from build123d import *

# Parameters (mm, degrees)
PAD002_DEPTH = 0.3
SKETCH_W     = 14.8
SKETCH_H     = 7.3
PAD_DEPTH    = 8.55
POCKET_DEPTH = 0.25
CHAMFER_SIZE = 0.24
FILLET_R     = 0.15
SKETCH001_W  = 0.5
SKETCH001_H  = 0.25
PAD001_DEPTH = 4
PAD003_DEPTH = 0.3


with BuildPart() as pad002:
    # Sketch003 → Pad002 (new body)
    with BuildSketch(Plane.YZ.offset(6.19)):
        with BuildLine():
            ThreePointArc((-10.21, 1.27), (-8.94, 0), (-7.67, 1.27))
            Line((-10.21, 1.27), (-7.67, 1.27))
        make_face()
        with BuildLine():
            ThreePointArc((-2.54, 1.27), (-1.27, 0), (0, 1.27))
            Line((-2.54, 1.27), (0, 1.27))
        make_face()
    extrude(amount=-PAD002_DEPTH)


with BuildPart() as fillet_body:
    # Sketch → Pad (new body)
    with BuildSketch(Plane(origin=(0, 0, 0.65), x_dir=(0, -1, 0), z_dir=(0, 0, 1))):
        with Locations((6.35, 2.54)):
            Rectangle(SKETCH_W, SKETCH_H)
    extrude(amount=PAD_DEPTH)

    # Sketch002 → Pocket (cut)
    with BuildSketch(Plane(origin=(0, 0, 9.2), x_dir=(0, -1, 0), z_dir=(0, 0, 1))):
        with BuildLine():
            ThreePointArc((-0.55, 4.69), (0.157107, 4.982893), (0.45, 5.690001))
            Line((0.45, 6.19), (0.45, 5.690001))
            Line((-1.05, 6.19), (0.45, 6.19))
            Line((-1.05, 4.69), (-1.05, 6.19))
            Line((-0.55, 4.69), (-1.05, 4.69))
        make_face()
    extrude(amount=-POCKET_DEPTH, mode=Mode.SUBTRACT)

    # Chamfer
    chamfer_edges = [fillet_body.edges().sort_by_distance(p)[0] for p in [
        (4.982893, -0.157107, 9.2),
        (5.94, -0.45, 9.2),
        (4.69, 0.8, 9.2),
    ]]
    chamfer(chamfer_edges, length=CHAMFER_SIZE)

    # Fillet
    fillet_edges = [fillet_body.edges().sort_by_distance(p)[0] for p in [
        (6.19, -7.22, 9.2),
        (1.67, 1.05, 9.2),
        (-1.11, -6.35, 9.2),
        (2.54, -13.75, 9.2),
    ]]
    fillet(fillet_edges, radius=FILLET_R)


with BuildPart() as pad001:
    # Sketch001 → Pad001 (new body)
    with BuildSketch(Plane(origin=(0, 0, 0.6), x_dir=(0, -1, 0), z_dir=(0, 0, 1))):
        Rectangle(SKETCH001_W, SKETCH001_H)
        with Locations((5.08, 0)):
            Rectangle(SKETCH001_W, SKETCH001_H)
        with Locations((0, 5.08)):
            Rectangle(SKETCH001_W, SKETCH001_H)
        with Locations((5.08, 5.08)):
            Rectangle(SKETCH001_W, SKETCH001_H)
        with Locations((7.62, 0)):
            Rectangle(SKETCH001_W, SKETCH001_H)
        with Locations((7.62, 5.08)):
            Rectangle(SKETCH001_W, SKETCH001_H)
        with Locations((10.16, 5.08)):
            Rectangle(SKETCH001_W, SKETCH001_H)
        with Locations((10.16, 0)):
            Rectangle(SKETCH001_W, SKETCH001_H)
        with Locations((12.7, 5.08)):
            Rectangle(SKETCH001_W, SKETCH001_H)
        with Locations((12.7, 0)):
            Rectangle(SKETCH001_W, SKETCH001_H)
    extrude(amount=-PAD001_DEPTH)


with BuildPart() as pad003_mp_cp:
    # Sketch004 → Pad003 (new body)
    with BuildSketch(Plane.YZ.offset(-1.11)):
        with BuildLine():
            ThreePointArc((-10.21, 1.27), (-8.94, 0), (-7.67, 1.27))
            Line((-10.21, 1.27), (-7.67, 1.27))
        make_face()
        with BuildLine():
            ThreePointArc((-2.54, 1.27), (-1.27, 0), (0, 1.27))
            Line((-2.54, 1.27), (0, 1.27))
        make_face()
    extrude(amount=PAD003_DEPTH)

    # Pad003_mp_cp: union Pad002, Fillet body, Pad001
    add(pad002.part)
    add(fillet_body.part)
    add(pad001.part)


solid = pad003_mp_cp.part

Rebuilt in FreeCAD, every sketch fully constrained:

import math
import FreeCAD as App
import Part
import Sketcher
Q = App.Units.Quantity


def edges_at(feature, points):
    """Names of the edges that pass closest to the given points."""
    edges = feature.Shape.Edges
    near = lambda p: min(range(len(edges)), key=lambda i: edges[i].distToShape(Part.Vertex(*p))[0])
    return sorted({f"Edge{near(p) + 1}" for p in points})


def add_polygon(sketch, points):
    """Adds a closed chain of lines whose ends are joined by coincident constraints."""
    first, n = sketch.GeometryCount, len(points)
    for a, b in zip(points, points[1:] + points[:1]):
        sketch.addGeometry(Part.LineSegment(App.Vector(*a, 0), App.Vector(*b, 0)), False)
    for i in range(n):
        sketch.addConstraint(Sketcher.Constraint("Coincident", first + i, 2, first + (i + 1) % n, 1))

doc = App.newDocument("Part")
body = doc.addObject("PartDesign::Body", "Body")
body.AllowCompound = True

# Sketch on YZ plane
sketch1 = body.newObject("Sketcher::SketchObject", "Sketch")
sketch1.AttachmentSupport = (doc.getObject("YZ_Plane"), [""])
sketch1.MapMode = "FlatFace"
sketch1.AttachmentOffset = App.Placement(App.Vector(0, 0, 6.19), App.Rotation())
sketch1.addGeometry(Part.ArcOfCircle(Part.Circle(App.Vector(-8.9, 1.3, 0), App.Vector(0, 0, 1), 1.3), math.radians(180), math.radians(360)), False)
sketch1.addGeometry(Part.LineSegment(App.Vector(-7.7, 1.3, 0), App.Vector(-10.2, 1.3, 0)), False)
sketch1.addGeometry(Part.ArcOfCircle(Part.Circle(App.Vector(-1.3, 1.3, 0), App.Vector(0, 0, 1), 1.3), math.radians(180), math.radians(360)), False)
sketch1.addGeometry(Part.LineSegment(App.Vector(0, 1.3, 0), App.Vector(-2.5, 1.3, 0)), False)
sketch1.addConstraint(Sketcher.Constraint("Coincident", 0, 1, 1, 2))
sketch1.addConstraint(Sketcher.Constraint("Coincident", 1, 1, 0, 2))
sketch1.addConstraint(Sketcher.Constraint("Coincident", 2, 1, 3, 2))
sketch1.addConstraint(Sketcher.Constraint("Coincident", 3, 1, 2, 2))
sketch1.addConstraint(Sketcher.Constraint("Horizontal", 1))
sketch1.addConstraint(Sketcher.Constraint("Horizontal", 3))
sketch1.addConstraint(Sketcher.Constraint("Equal", 0, 2))
sketch1.addConstraint(Sketcher.Constraint("PointOnObject", 3, 1, -2))
sketch1.addConstraint(Sketcher.Constraint("Horizontal", 0, 3, 2, 3))
sketch1.addConstraint(Sketcher.Constraint("Horizontal", 2, 3, 0, 1))
sketch1.addConstraint(Sketcher.Constraint("Horizontal", 1, 1, 2, 1))
sketch1.addConstraint(Sketcher.Constraint("Radius", 0, Q("1.27 mm")))
sketch1.addConstraint(Sketcher.Constraint("DistanceX", 1, 1, 2, 3, Q("6.4 mm")))
sketch1.addConstraint(Sketcher.Constraint("DistanceY", -1, 1, 0, 3, Q("1.27 mm")))
pad1 = body.newObject("PartDesign::Pad", "Pad")
pad1.Profile = sketch1
pad1.Length = 0.3
pad1.Reversed = True
body2 = doc.addObject("PartDesign::Body", "Body001")

# Sketch on XY plane
sketch2 = body2.newObject("Sketcher::SketchObject", "Sketch001")
sketch2.AttachmentSupport = (doc.getObject("XY_Plane001"), [""])
sketch2.MapMode = "FlatFace"
sketch2.AttachmentOffset = App.Placement(App.Vector(0, 0, 0.65), App.Rotation())
add_polygon(sketch2, [(6, 1), (-1, 1), (-1, -14), (6, -14)])  # lines 0-3
sketch2.addConstraint(Sketcher.Constraint("Horizontal", 0))
sketch2.addConstraint(Sketcher.Constraint("Vertical", 1))
sketch2.addConstraint(Sketcher.Constraint("Horizontal", 2))
sketch2.addConstraint(Sketcher.Constraint("Vertical", 3))
sketch2.addConstraint(Sketcher.Constraint("DistanceX", 0, 2, 0, 1, Q("7.3 mm")))
sketch2.addConstraint(Sketcher.Constraint("DistanceY", 1, 2, 1, 1, Q("14.8 mm")))
sketch2.addConstraint(Sketcher.Constraint("DistanceX", 0, 2, -1, 1, Q("1.11 mm")))
sketch2.addConstraint(Sketcher.Constraint("DistanceY", -1, 1, 0, 2, Q("1.05 mm")))
pad2 = body2.newObject("PartDesign::Pad", "Pad001")
pad2.Profile = sketch2
pad2.Length = 8.55

# Sketch on XY plane
sketch3 = body2.newObject("Sketcher::SketchObject", "Sketch002")
sketch3.AttachmentSupport = (doc.getObject("XY_Plane001"), [""])
sketch3.MapMode = "FlatFace"
sketch3.AttachmentOffset = App.Placement(App.Vector(0, 0, 9.2), App.Rotation())
sketch3.addGeometry(Part.ArcOfCircle(Part.Circle(App.Vector(5.69, 0.55, 0), App.Vector(0, 0, 1), 1), math.radians(180), math.radians(270)), False)
sketch3.addGeometry(Part.LineSegment(App.Vector(5.69, -0.45, 0), App.Vector(6.19, -0.45, 0)), False)
sketch3.addGeometry(Part.LineSegment(App.Vector(6.19, -0.45, 0), App.Vector(6.19, 1.05, 0)), False)
sketch3.addGeometry(Part.LineSegment(App.Vector(6.19, 1.05, 0), App.Vector(4.69, 1.05, 0)), False)
sketch3.addGeometry(Part.LineSegment(App.Vector(4.69, 1.05, 0), App.Vector(4.69, 0.55, 0)), False)
sketch3.addConstraint(Sketcher.Constraint("Tangent", 0, 2, 1, 1))
sketch3.addConstraint(Sketcher.Constraint("Coincident", 1, 2, 2, 1))
sketch3.addConstraint(Sketcher.Constraint("Coincident", 2, 2, 3, 1))
sketch3.addConstraint(Sketcher.Constraint("Coincident", 3, 2, 4, 1))
sketch3.addConstraint(Sketcher.Constraint("Tangent", 4, 2, 0, 1))
sketch3.addConstraint(Sketcher.Constraint("Horizontal", 1))
sketch3.addConstraint(Sketcher.Constraint("Vertical", 2))
sketch3.addConstraint(Sketcher.Constraint("Horizontal", 3))
sketch3.addConstraint(Sketcher.Constraint("Vertical", 4))
sketch3.addConstraint(Sketcher.Constraint("Equal", 3, 2))
sketch3.addConstraint(Sketcher.Constraint("Radius", 0, Q("0.999999 mm")))
sketch3.addConstraint(Sketcher.Constraint("DistanceX", 1, 1, 1, 2, Q("0.499999 mm")))
sketch3.addConstraint(Sketcher.Constraint("DistanceX", -1, 1, 0, 3, Q("5.689999 mm")))
sketch3.addConstraint(Sketcher.Constraint("DistanceY", -1, 1, 0, 3, Q("0.549999 mm")))
pocket1 = body2.newObject("PartDesign::Pocket", "Pocket")
pocket1.Profile = sketch3
pocket1.Length = 0.25
doc.recompute()

chamfer = body2.newObject("PartDesign::Chamfer", "Chamfer")
chamfer.Base = (pocket1, edges_at(pocket1, [(4.983, -0.157, 9.2), (5.94, -0.45, 9.2), (4.69, 0.8, 9.2)]))
chamfer.Size = 0.24
doc.recompute()

fillet = body2.newObject("PartDesign::Fillet", "Fillet")
fillet.Base = (chamfer, edges_at(chamfer, [
    (6.19, -7.22, 9.2),
    (1.67, 1.05, 9.2),
    (-1.11, -6.35, 9.2),
    (2.54, -13.75, 9.2),
]))
fillet.Radius = 0.15
body3 = doc.addObject("PartDesign::Body", "Body002")
body3.AllowCompound = True

# Sketch on XY plane
sketch4 = body3.newObject("Sketcher::SketchObject", "Sketch003")
sketch4.AttachmentSupport = (doc.getObject("XY_Plane002"), [""])
sketch4.MapMode = "FlatFace"
sketch4.AttachmentOffset = App.Placement(App.Vector(0, 0, 0.6), App.Rotation())
add_polygon(sketch4, [(0.12, 0.25), (-0.12, 0.25), (-0.12, -0.25), (0.12, -0.25)])  # lines 0-3
add_polygon(sketch4, [(0.12, -4.83), (-0.12, -4.83), (-0.12, -5.33), (0.12, -5.33)])  # lines 4-7
add_polygon(sketch4, [(5.21, 0.25), (4.96, 0.25), (4.96, -0.25), (5.21, -0.25)])  # lines 8-11
add_polygon(sketch4, [(5.21, -4.83), (4.96, -4.83), (4.96, -5.33), (5.21, -5.33)])  # lines 12-15
add_polygon(sketch4, [(0.12, -7.37), (-0.12, -7.37), (-0.12, -7.87), (0.12, -7.87)])  # lines 16-19
add_polygon(sketch4, [(5.21, -7.37), (4.96, -7.37), (4.96, -7.87), (5.21, -7.87)])  # lines 20-23
add_polygon(sketch4, [(5.21, -9.91), (4.96, -9.91), (4.96, -10.41), (5.21, -10.41)])  # lines 24-27
add_polygon(sketch4, [(0.12, -9.91), (-0.12, -9.91), (-0.12, -10.41), (0.12, -10.41)])  # lines 28-31
add_polygon(sketch4, [(5.21, -12.45), (4.96, -12.45), (4.96, -12.95), (5.21, -12.95)])  # lines 32-35
add_polygon(sketch4, [(0.12, -12.45), (-0.12, -12.45), (-0.12, -12.95), (0.12, -12.95)])  # lines 36-39
sketch4.addConstraint(Sketcher.Constraint("Horizontal", 0))
sketch4.addConstraint(Sketcher.Constraint("Vertical", 1))
sketch4.addConstraint(Sketcher.Constraint("Horizontal", 2))
sketch4.addConstraint(Sketcher.Constraint("Vertical", 3))
sketch4.addConstraint(Sketcher.Constraint("Horizontal", 4))
sketch4.addConstraint(Sketcher.Constraint("Vertical", 5))
sketch4.addConstraint(Sketcher.Constraint("Horizontal", 6))
sketch4.addConstraint(Sketcher.Constraint("Vertical", 7))
sketch4.addConstraint(Sketcher.Constraint("Horizontal", 8))
sketch4.addConstraint(Sketcher.Constraint("Vertical", 9))
sketch4.addConstraint(Sketcher.Constraint("Horizontal", 10))
sketch4.addConstraint(Sketcher.Constraint("Vertical", 11))
sketch4.addConstraint(Sketcher.Constraint("Horizontal", 12))
sketch4.addConstraint(Sketcher.Constraint("Vertical", 13))
sketch4.addConstraint(Sketcher.Constraint("Horizontal", 14))
sketch4.addConstraint(Sketcher.Constraint("Vertical", 15))
sketch4.addConstraint(Sketcher.Constraint("Horizontal", 16))
sketch4.addConstraint(Sketcher.Constraint("Vertical", 17))
sketch4.addConstraint(Sketcher.Constraint("Horizontal", 18))
sketch4.addConstraint(Sketcher.Constraint("Vertical", 19))
sketch4.addConstraint(Sketcher.Constraint("Horizontal", 20))
sketch4.addConstraint(Sketcher.Constraint("Vertical", 21))
sketch4.addConstraint(Sketcher.Constraint("Horizontal", 22))
sketch4.addConstraint(Sketcher.Constraint("Vertical", 23))
sketch4.addConstraint(Sketcher.Constraint("Horizontal", 24))
sketch4.addConstraint(Sketcher.Constraint("Vertical", 25))
sketch4.addConstraint(Sketcher.Constraint("Horizontal", 26))
sketch4.addConstraint(Sketcher.Constraint("Vertical", 27))
sketch4.addConstraint(Sketcher.Constraint("Horizontal", 28))
sketch4.addConstraint(Sketcher.Constraint("Vertical", 29))
sketch4.addConstraint(Sketcher.Constraint("Horizontal", 30))
sketch4.addConstraint(Sketcher.Constraint("Vertical", 31))
sketch4.addConstraint(Sketcher.Constraint("Horizontal", 32))
sketch4.addConstraint(Sketcher.Constraint("Vertical", 33))
sketch4.addConstraint(Sketcher.Constraint("Horizontal", 34))
sketch4.addConstraint(Sketcher.Constraint("Vertical", 35))
sketch4.addConstraint(Sketcher.Constraint("Horizontal", 36))
sketch4.addConstraint(Sketcher.Constraint("Vertical", 37))
sketch4.addConstraint(Sketcher.Constraint("Horizontal", 38))
sketch4.addConstraint(Sketcher.Constraint("Vertical", 39))
sketch4.addConstraint(Sketcher.Constraint("Symmetric", 0, 2, 2, 2, -1, 1))
sketch4.addConstraint(Sketcher.Constraint("Horizontal", 3, 2, 8, 2))
sketch4.addConstraint(Sketcher.Constraint("Horizontal", 2, 2, 9, 2))
sketch4.addConstraint(Sketcher.Constraint("Horizontal", 7, 2, 12, 2))
sketch4.addConstraint(Sketcher.Constraint("Horizontal", 6, 2, 13, 2))
sketch4.addConstraint(Sketcher.Constraint("Horizontal", 19, 2, 20, 2))
sketch4.addConstraint(Sketcher.Constraint("Horizontal", 18, 2, 21, 2))
sketch4.addConstraint(Sketcher.Constraint("Horizontal", 27, 2, 28, 2))
sketch4.addConstraint(Sketcher.Constraint("Horizontal", 26, 2, 29, 2))
sketch4.addConstraint(Sketcher.Constraint("Horizontal", 35, 2, 36, 2))
sketch4.addConstraint(Sketcher.Constraint("Horizontal", 34, 2, 37, 2))
sketch4.addConstraint(Sketcher.Constraint("Vertical", 1, 2, 4, 2))
sketch4.addConstraint(Sketcher.Constraint("Vertical", 3, 2, 6, 2))
sketch4.addConstraint(Sketcher.Constraint("Vertical", 9, 2, 12, 2))
sketch4.addConstraint(Sketcher.Constraint("Vertical", 11, 2, 14, 2))
sketch4.addConstraint(Sketcher.Constraint("Vertical", 5, 2, 16, 2))
sketch4.addConstraint(Sketcher.Constraint("Vertical", 7, 2, 18, 2))
sketch4.addConstraint(Sketcher.Constraint("Vertical", 13, 2, 20, 2))
sketch4.addConstraint(Sketcher.Constraint("Vertical", 15, 2, 22, 2))
sketch4.addConstraint(Sketcher.Constraint("Vertical", 21, 2, 24, 2))
sketch4.addConstraint(Sketcher.Constraint("Vertical", 23, 2, 26, 2))
sketch4.addConstraint(Sketcher.Constraint("Vertical", 17, 2, 28, 2))
sketch4.addConstraint(Sketcher.Constraint("Vertical", 19, 2, 30, 2))
sketch4.addConstraint(Sketcher.Constraint("Vertical", 25, 2, 32, 2))
sketch4.addConstraint(Sketcher.Constraint("Vertical", 27, 2, 34, 2))
sketch4.addConstraint(Sketcher.Constraint("Vertical", 29, 2, 36, 2))
sketch4.addConstraint(Sketcher.Constraint("Vertical", 31, 2, 38, 2))
sketch4.addConstraint(Sketcher.Constraint("Equal", 6, 8))
sketch4.addConstraint(Sketcher.Constraint("Equal", 3, 5))
sketch4.addConstraint(Sketcher.Constraint("Equal", 15, 17))
sketch4.addConstraint(Sketcher.Constraint("Equal", 23, 25))
sketch4.addConstraint(Sketcher.Constraint("Equal", 31, 33))
sketch4.addConstraint(Sketcher.Constraint("DistanceY", 1, 2, 1, 1, Q("0.5 mm")))
sketch4.addConstraint(Sketcher.Constraint("DistanceX", 0, 2, 0, 1, Q("0.25 mm")))
sketch4.addConstraint(Sketcher.Constraint("DistanceY", 4, 2, -1, 1, Q("4.83 mm")))
sketch4.addConstraint(Sketcher.Constraint("DistanceY", 16, 2, -1, 1, Q("7.37 mm")))
sketch4.addConstraint(Sketcher.Constraint("DistanceY", 24, 2, -1, 1, Q("9.91 mm")))
sketch4.addConstraint(Sketcher.Constraint("DistanceY", 32, 2, -1, 1, Q("12.45 mm")))
sketch4.addConstraint(Sketcher.Constraint("DistanceX", 3, 2, 8, 2, Q("4.83 mm")))
pad3 = body3.newObject("PartDesign::Pad", "Pad002")
pad3.Profile = sketch4
pad3.Length = 4
pad3.Reversed = True
body4 = doc.addObject("PartDesign::Body", "Body003")
body4.AllowCompound = True

# Sketch on YZ plane
sketch5 = body4.newObject("Sketcher::SketchObject", "Sketch004")
sketch5.AttachmentSupport = (doc.getObject("YZ_Plane003"), [""])
sketch5.MapMode = "FlatFace"
sketch5.AttachmentOffset = App.Placement(App.Vector(0, 0, -1.11), App.Rotation())
sketch5.addGeometry(Part.ArcOfCircle(Part.Circle(App.Vector(-8.9, 1.3, 0), App.Vector(0, 0, 1), 1.3), math.radians(180), math.radians(360)), False)
sketch5.addGeometry(Part.LineSegment(App.Vector(-7.7, 1.3, 0), App.Vector(-10.2, 1.3, 0)), False)
sketch5.addGeometry(Part.ArcOfCircle(Part.Circle(App.Vector(-1.3, 1.3, 0), App.Vector(0, 0, 1), 1.3), math.radians(180), math.radians(360)), False)
sketch5.addGeometry(Part.LineSegment(App.Vector(0, 1.3, 0), App.Vector(-2.5, 1.3, 0)), False)
sketch5.addConstraint(Sketcher.Constraint("Coincident", 0, 1, 1, 2))
sketch5.addConstraint(Sketcher.Constraint("Coincident", 1, 1, 0, 2))
sketch5.addConstraint(Sketcher.Constraint("Coincident", 2, 1, 3, 2))
sketch5.addConstraint(Sketcher.Constraint("Coincident", 3, 1, 2, 2))
sketch5.addConstraint(Sketcher.Constraint("Horizontal", 1))
sketch5.addConstraint(Sketcher.Constraint("Horizontal", 3))
sketch5.addConstraint(Sketcher.Constraint("Equal", 0, 2))
sketch5.addConstraint(Sketcher.Constraint("PointOnObject", 3, 1, -2))
sketch5.addConstraint(Sketcher.Constraint("Horizontal", 0, 3, 2, 3))
sketch5.addConstraint(Sketcher.Constraint("Horizontal", 2, 3, 0, 1))
sketch5.addConstraint(Sketcher.Constraint("Horizontal", 1, 1, 2, 1))
sketch5.addConstraint(Sketcher.Constraint("Radius", 0, Q("1.27 mm")))
sketch5.addConstraint(Sketcher.Constraint("DistanceX", 1, 1, 2, 3, Q("6.4 mm")))
sketch5.addConstraint(Sketcher.Constraint("DistanceY", -1, 1, 0, 3, Q("1.27 mm")))
pad4 = body4.newObject("PartDesign::Pad", "Pad003")
pad4.Profile = sketch5
pad4.Length = 0.3
doc.recompute()

boolean = body4.newObject("PartDesign::Boolean", "Boolean")
boolean.Type = "Fuse"
boolean.addObjects([body])
doc.recompute()

boolean2 = body4.newObject("PartDesign::Boolean", "Boolean001")
boolean2.Type = "Fuse"
boolean2.addObjects([body2])
doc.recompute()

boolean3 = body4.newObject("PartDesign::Boolean", "Boolean002")
boolean3.Type = "Fuse"
boolean3.addObjects([body3])

doc.recompute()
